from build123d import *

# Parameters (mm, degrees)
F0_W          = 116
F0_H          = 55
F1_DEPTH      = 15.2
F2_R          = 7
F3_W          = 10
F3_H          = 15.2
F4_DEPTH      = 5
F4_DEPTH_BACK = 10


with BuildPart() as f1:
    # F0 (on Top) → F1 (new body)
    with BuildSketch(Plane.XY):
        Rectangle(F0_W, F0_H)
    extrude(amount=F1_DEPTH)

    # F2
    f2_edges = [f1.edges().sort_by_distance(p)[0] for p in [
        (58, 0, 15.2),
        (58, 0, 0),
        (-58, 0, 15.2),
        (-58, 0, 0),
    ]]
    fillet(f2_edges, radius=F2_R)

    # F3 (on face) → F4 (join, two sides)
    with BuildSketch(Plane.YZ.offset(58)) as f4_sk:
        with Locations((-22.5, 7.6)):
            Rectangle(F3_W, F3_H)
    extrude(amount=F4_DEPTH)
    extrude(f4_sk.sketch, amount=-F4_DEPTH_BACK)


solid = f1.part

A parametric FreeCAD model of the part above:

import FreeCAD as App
import Part
import Sketcher

V = App.Vector


def edges_at(feature, points):
    """Names of the edges that pass closest to the given points."""
    edges = feature.Shape.Edges
    near = lambda p: min(range(len(edges)), key=lambda i: edges[i].distToShape(Part.Vertex(*p))[0])
    return sorted({f"Edge{near(p) + 1}" for p in points})

doc = App.newDocument("Part")
body = doc.addObject("PartDesign::Body", "Body")

sketch1 = body.newObject("Sketcher::SketchObject", "Sketch")
sketch1.AttachmentSupport = (doc.getObject("XY_Plane"), [""])
sketch1.MapMode = "FlatFace"
sketch1.addGeometry(Part.LineSegment(V(-58, 27.5, 0), V(-58, -27.5, 0)), False)
sketch1.addGeometry(Part.LineSegment(V(-58, -27.5, 0), V(58, -27.5, 0)), False)
sketch1.addGeometry(Part.LineSegment(V(58, -27.5, 0), V(58, 27.5, 0)), False)
sketch1.addGeometry(Part.LineSegment(V(58, 27.5, 0), V(-58, 27.5, 0)), False)
sketch1.addConstraint(Sketcher.Constraint("Coincident", 0, 2, 1, 1))
sketch1.addConstraint(Sketcher.Constraint("Coincident", 1, 2, 2, 1))
sketch1.addConstraint(Sketcher.Constraint("Coincident", 2, 2, 3, 1))
sketch1.addConstraint(Sketcher.Constraint("Coincident", 3, 2, 0, 1))
sketch1.addConstraint(Sketcher.Constraint("Vertical", 0))
sketch1.addConstraint(Sketcher.Constraint("Horizontal", 1))
sketch1.addConstraint(Sketcher.Constraint("Vertical", 2))
sketch1.addConstraint(Sketcher.Constraint("Horizontal", 3))
sketch1.addConstraint(Sketcher.Constraint("Symmetric", 0, 2, 2, 2, -1, 1))
sketch1.addConstraint(Sketcher.Constraint("DistanceX", 1, 1, 1, 2, 116.0))
sketch1.addConstraint(Sketcher.Constraint("DistanceY", 0, 2, 0, 1, 55.0))
pad1 = body.newObject("PartDesign::Pad", "Pad")
pad1.Profile = sketch1
pad1.Length = 15.2
doc.recompute()

fillet = body.newObject("PartDesign::Fillet", "Fillet")
fillet.Base = (pad1, edges_at(pad1, [
    (58, 0, 15.2),
    (58, 0, 0),
    (-58, 0, 15.2),
    (-58, 0, 0),
]))
fillet.Radius = 7

sketch2 = body.newObject("Sketcher::SketchObject", "Sketch001")
sketch2.AttachmentSupport = (doc.getObject("YZ_Plane"), [""])
sketch2.MapMode = "FlatFace"
sketch2.AttachmentOffset = App.Placement(V(0, 0, 58), App.Rotation())
sketch2.addGeometry(Part.LineSegment(V(-27.5, 15.2, 0), V(-27.5, 0, 0)), False)
sketch2.addGeometry(Part.LineSegment(V(-27.5, 0, 0), V(-17.5, 0, 0)), False)
sketch2.addGeometry(Part.LineSegment(V(-17.5, 0, 0), V(-17.5, 15.2, 0)), False)
sketch2.addGeometry(Part.LineSegment(V(-17.5, 15.2, 0), V(-27.5, 15.2, 0)), False)
sketch2.addConstraint(Sketcher.Constraint("Coincident", 0, 2, 1, 1))
sketch2.addConstraint(Sketcher.Constraint("Coincident", 1, 2, 2, 1))
sketch2.addConstraint(Sketcher.Constraint("Coincident", 2, 2, 3, 1))
sketch2.addConstraint(Sketcher.Constraint("Coincident", 3, 2, 0, 1))
sketch2.addConstraint(Sketcher.Constraint("Vertical", 0))
sketch2.addConstraint(Sketcher.Constraint("Horizontal", 1))
sketch2.addConstraint(Sketcher.Constraint("Vertical", 2))
sketch2.addConstraint(Sketcher.Constraint("Horizontal", 3))
sketch2.addConstraint(Sketcher.Constraint("PointOnObject", 0, 2, -1))
sketch2.addConstraint(Sketcher.Constraint("DistanceX", 1, 1, 1, 2, 10.0))
sketch2.addConstraint(Sketcher.Constraint("DistanceY", 0, 2, 0, 1, 15.2))
sketch2.addConstraint(Sketcher.Constraint("DistanceX", 0, 2, -1, 1, 27.5))
pad2 = body.newObject("PartDesign::Pad", "Pad001")
pad2.Profile = sketch2
pad2.Type = "TwoLengths"
pad2.Length = 5
pad2.Length2 = 10

doc.recompute()
